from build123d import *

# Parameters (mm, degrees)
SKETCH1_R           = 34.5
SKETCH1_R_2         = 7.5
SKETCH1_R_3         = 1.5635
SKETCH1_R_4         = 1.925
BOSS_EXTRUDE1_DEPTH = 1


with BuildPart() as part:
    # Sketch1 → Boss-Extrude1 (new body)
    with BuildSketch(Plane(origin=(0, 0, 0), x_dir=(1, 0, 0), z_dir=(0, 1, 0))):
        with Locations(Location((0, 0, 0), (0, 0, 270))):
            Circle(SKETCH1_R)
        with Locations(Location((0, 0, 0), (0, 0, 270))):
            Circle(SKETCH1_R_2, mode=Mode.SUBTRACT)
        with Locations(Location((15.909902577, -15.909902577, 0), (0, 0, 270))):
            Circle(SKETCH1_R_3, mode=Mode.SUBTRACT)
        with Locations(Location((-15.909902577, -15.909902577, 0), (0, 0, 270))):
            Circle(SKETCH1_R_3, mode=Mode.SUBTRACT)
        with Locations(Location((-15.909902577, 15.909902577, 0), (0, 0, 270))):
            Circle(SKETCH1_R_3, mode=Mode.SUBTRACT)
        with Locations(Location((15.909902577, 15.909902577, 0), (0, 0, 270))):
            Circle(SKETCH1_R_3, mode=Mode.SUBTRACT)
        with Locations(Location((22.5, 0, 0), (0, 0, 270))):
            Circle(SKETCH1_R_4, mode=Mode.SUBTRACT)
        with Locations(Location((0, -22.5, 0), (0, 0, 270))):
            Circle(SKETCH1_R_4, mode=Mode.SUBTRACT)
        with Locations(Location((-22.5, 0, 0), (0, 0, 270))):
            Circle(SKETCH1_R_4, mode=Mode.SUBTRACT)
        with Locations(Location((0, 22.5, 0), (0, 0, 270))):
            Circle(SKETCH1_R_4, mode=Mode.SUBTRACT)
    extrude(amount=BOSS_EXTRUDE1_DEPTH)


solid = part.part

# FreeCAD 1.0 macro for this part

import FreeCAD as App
import Part
import Sketcher
from FreeCAD import Vector

doc = App.newDocument("Part")
body = doc.addObject("PartDesign::Body", "Body")

# Sketch on XZ plane
sketch1 = body.newObject("Sketcher::SketchObject", "Sketch")
sketch1.AttachmentSupport = (doc.getObject("XZ_Plane"), [""])
sketch1.MapMode = "FlatFace"
sketch1.addGeometry(Part.Circle(Vector(0, 0, 0), Vector(0, 0, 1), 34.5), False)
sketch1.addGeometry(Part.Circle(Vector(-15.909903, -15.909903, 0), Vector(0, 0, 1), 1.5635), False)
sketch1.addGeometry(Part.Circle(Vector(0, -22.5, 0), Vector(0, 0, 1), 1.925), False)
sketch1.addGeometry(Part.Circle(Vector(0, 0, 0), Vector(0, 0, 1), 7.5), False)
sketch1.addGeometry(Part.Circle(Vector(-22.5, 0, 0), Vector(0, 0, 1), 1.925), False)
sketch1.addGeometry(Part.Circle(Vector(-15.909903, 15.909903, 0), Vector(0, 0, 1), 1.5635), False)
sketch1.addGeometry(Part.Circle(Vector(15.909903, -15.909903, 0), Vector(0, 0, 1), 1.5635), False)
sketch1.addGeometry(Part.Circle(Vector(22.5, 0, 0), Vector(0, 0, 1), 1.925), False)
sketch1.addGeometry(Part.Circle(Vector(0, 22.5, 0), Vector(0, 0, 1), 1.925), False)
sketch1.addGeometry(Part.Circle(Vector(15.909903, 15.909903, 0), Vector(0, 0, 1), 1.5635), False)
sketch1.addConstraint(Sketcher.Constraint("Coincident", 0, 3, -1, 1))
sketch1.addConstraint(Sketcher.Constraint("Coincident", 3, 3, -1, 1))
sketch1.addConstraint(Sketcher.Constraint("Equal", 2, 4))
sketch1.addConstraint(Sketcher.Constraint("Equal", 1, 5))
sketch1.addConstraint(Sketcher.Constraint("Equal", 5, 6))
sketch1.addConstraint(Sketcher.Constraint("Equal", 4, 7))
sketch1.addConstraint(Sketcher.Constraint("Equal", 7, 8))
sketch1.addConstraint(Sketcher.Constraint("Equal", 6, 9))
sketch1.addConstraint(Sketcher.Constraint("Symmetric", 5, 3, 6, 3, -1, 1))
sketch1.addConstraint(Sketcher.Constraint("Symmetric", 4, 3, 7, 3, -1, 1))
sketch1.addConstraint(Sketcher.Constraint("Symmetric", 2, 3, 8, 3, -1, 1))
sketch1.addConstraint(Sketcher.Constraint("Symmetric", 1, 3, 9, 3, -1, 1))
sketch1.addConstraint(Sketcher.Constraint("Symmetric", 1, 3, 6, 3, -2))
sketch1.addConstraint(Sketcher.Constraint("PointOnObject", 2, 3, -2))
sketch1.addConstraint(Sketcher.Constraint("PointOnObject", 4, 3, -1))
sketch1.addConstraint(Sketcher.Constraint("Diameter", 0, 69.0))
sketch1.addConstraint(Sketcher.Constraint("Diameter", 3, 15.0))
sketch1.addConstraint(Sketcher.Constraint("Diameter", 2, 3.85))
sketch1.addConstraint(Sketcher.Constraint("Diameter", 1, 3.127))
sketch1.addConstraint(Sketcher.Constraint("DistanceY", 2, 3, -1, 1, 22.5))
sketch1.addConstraint(Sketcher.Constraint("DistanceX", 4, 3, -1, 1, 22.5))
sketch1.addConstraint(Sketcher.Constraint("DistanceX", 1, 3, -1, 1, 15.909903))
sketch1.addConstraint(Sketcher.Constraint("DistanceY", 1, 3, -1, 1, 15.909903))
pad1 = body.newObject("PartDesign::Pad", "Pad")
pad1.Profile = sketch1
pad1.Length = 1
pad1.Reversed = True

doc.recompute()
